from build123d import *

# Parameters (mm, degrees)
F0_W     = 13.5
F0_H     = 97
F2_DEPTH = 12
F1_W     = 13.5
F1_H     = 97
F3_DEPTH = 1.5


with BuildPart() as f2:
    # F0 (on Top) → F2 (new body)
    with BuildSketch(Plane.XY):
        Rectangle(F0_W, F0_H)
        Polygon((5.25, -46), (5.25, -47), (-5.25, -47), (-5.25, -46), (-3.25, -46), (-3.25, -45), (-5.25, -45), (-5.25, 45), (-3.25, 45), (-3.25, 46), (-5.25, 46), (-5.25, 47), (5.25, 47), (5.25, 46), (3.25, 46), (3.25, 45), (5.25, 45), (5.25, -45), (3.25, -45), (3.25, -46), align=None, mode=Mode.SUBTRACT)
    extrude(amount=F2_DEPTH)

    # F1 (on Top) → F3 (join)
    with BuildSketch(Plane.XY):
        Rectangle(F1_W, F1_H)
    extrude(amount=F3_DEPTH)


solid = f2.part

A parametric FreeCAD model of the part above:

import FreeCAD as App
import Part
import Sketcher
Q = App.Units.Quantity


def add_polygon(sketch, points):
    """Adds a closed chain of lines whose ends are joined by coincident constraints."""
    first, n = sketch.GeometryCount, len(points)
    for a, b in zip(points, points[1:] + points[:1]):
        sketch.addGeometry(Part.LineSegment(App.Vector(*a, 0), App.Vector(*b, 0)), False)
    for i in range(n):
        sketch.addConstraint(Sketcher.Constraint("Coincident", first + i, 2, first + (i + 1) % n, 1))

doc = App.newDocument("Part")
body = doc.addObject("PartDesign::Body", "Body")

# Sketch on XY plane
sketch1 = body.newObject("Sketcher::SketchObject", "Sketch")
sketch1.AttachmentSupport = (doc.getObject("XY_Plane"), [""])
sketch1.MapMode = "FlatFace"
add_polygon(sketch1, [(-6.8, 48.5), (-6.8, -48.5), (6.8, -48.5), (6.8, 48.5)])  # lines 0-3
add_polygon(sketch1, [(3.2, -46), (5.2, -46), (5.2, -47), (-5.2, -47), (-5.2, -46), (-3.2, -46), (-3.2, -45), (-5.2, -45), (-5.2, 45), (-3.2, 45), (-3.2, 46), (-5.2, 46), (-5.2, 47), (5.2, 47), (5.2, 46), (3.2, 46), (3.2, 45), (5.2, 45), (5.2, -45), (3.2, -45)])  # lines 4-23
sketch1.addConstraint(Sketcher.Constraint("Vertical", 0))
sketch1.addConstraint(Sketcher.Constraint("Horizontal", 1))
sketch1.addConstraint(Sketcher.Constraint("Vertical", 2))
sketch1.addConstraint(Sketcher.Constraint("Horizontal", 3))
sketch1.addConstraint(Sketcher.Constraint("Horizontal", 4))
sketch1.addConstraint(Sketcher.Constraint("Vertical", 5))
sketch1.addConstraint(Sketcher.Constraint("Horizontal", 6))
sketch1.addConstraint(Sketcher.Constraint("Vertical", 7))
sketch1.addConstraint(Sketcher.Constraint("Horizontal", 8))
sketch1.addConstraint(Sketcher.Constraint("Vertical", 9))
sketch1.addConstraint(Sketcher.Constraint("Horizontal", 10))
sketch1.addConstraint(Sketcher.Constraint("Vertical", 11))
sketch1.addConstraint(Sketcher.Constraint("Horizontal", 12))
sketch1.addConstraint(Sketcher.Constraint("Vertical", 13))
sketch1.addConstraint(Sketcher.Constraint("Horizontal", 14))
sketch1.addConstraint(Sketcher.Constraint("Vertical", 15))
sketch1.addConstraint(Sketcher.Constraint("Horizontal", 16))
sketch1.addConstraint(Sketcher.Constraint("Vertical", 17))
sketch1.addConstraint(Sketcher.Constraint("Horizontal", 18))
sketch1.addConstraint(Sketcher.Constraint("Vertical", 19))
sketch1.addConstraint(Sketcher.Constraint("Horizontal", 20))
sketch1.addConstraint(Sketcher.Constraint("Vertical", 21))
sketch1.addConstraint(Sketcher.Constraint("Horizontal", 22))
sketch1.addConstraint(Sketcher.Constraint("Vertical", 23))
sketch1.addConstraint(Sketcher.Constraint("Symmetric", 0, 2, 2, 2, -1, 1))
sketch1.addConstraint(Sketcher.Constraint("Symmetric", 4, 2, 14, 2, -1, 1))
sketch1.addConstraint(Sketcher.Constraint("Symmetric", 6, 2, 16, 2, -1, 1))
sketch1.addConstraint(Sketcher.Constraint("Symmetric", 8, 2, 18, 2, -1, 1))
sketch1.addConstraint(Sketcher.Constraint("Symmetric", 10, 2, 20, 2, -1, 1))
sketch1.addConstraint(Sketcher.Constraint("Symmetric", 12, 2, 22, 2, -1, 1))
sketch1.addConstraint(Sketcher.Constraint("Symmetric", 4, 2, 7, 2, -2))
sketch1.addConstraint(Sketcher.Constraint("Symmetric", 12, 2, 19, 2, -2))
sketch1.addConstraint(Sketcher.Constraint("Vertical", 7, 2, 10, 2))
sketch1.addConstraint(Sketcher.Constraint("Equal", 7, 9))
sketch1.addConstraint(Sketcher.Constraint("DistanceX", 4, 1, 4, 2, Q("2 mm")))
sketch1.addConstraint(Sketcher.Constraint("DistanceY", 0, 2, 0, 1, Q("97 mm")))
sketch1.addConstraint(Sketcher.Constraint("DistanceY", 5, 2, 5, 1, Q("1 mm")))
sketch1.addConstraint(Sketcher.Constraint("DistanceY", 11, 1, 11, 2, Q("90 mm")))
sketch1.addConstraint(Sketcher.Constraint("DistanceX", 1, 1, 1, 2, Q("13.5 mm")))
sketch1.addConstraint(Sketcher.Constraint("DistanceX", 6, 2, 6, 1, Q("10.5 mm")))
pad1 = body.newObject("PartDesign::Pad", "Pad")
pad1.Profile = sketch1
pad1.Length = 12

# Sketch on XY plane
sketch2 = body.newObject("Sketcher::SketchObject", "Sketch001")
sketch2.AttachmentSupport = (doc.getObject("XY_Plane"), [""])
sketch2.MapMode = "FlatFace"
add_polygon(sketch2, [(-7, 48), (-7, -48), (7, -48), (7, 48)])  # lines 0-3
sketch2.addConstraint(Sketcher.Constraint("Vertical", 0))
sketch2.addConstraint(Sketcher.Constraint("Horizontal", 1))
sketch2.addConstraint(Sketcher.Constraint("Vertical", 2))
sketch2.addConstraint(Sketcher.Constraint("Horizontal", 3))
sketch2.addConstraint(Sketcher.Constraint("Symmetric", 0, 2, 2, 2, -1, 1))
sketch2.addConstraint(Sketcher.Constraint("DistanceY", 0, 2, 0, 1, Q("97 mm")))
sketch2.addConstraint(Sketcher.Constraint("DistanceX", 1, 1, 1, 2, Q("13.5 mm")))
pad2 = body.newObject("PartDesign::Pad", "Pad001")
pad2.Profile = sketch2
pad2.Length = 1.5

doc.recompute()
